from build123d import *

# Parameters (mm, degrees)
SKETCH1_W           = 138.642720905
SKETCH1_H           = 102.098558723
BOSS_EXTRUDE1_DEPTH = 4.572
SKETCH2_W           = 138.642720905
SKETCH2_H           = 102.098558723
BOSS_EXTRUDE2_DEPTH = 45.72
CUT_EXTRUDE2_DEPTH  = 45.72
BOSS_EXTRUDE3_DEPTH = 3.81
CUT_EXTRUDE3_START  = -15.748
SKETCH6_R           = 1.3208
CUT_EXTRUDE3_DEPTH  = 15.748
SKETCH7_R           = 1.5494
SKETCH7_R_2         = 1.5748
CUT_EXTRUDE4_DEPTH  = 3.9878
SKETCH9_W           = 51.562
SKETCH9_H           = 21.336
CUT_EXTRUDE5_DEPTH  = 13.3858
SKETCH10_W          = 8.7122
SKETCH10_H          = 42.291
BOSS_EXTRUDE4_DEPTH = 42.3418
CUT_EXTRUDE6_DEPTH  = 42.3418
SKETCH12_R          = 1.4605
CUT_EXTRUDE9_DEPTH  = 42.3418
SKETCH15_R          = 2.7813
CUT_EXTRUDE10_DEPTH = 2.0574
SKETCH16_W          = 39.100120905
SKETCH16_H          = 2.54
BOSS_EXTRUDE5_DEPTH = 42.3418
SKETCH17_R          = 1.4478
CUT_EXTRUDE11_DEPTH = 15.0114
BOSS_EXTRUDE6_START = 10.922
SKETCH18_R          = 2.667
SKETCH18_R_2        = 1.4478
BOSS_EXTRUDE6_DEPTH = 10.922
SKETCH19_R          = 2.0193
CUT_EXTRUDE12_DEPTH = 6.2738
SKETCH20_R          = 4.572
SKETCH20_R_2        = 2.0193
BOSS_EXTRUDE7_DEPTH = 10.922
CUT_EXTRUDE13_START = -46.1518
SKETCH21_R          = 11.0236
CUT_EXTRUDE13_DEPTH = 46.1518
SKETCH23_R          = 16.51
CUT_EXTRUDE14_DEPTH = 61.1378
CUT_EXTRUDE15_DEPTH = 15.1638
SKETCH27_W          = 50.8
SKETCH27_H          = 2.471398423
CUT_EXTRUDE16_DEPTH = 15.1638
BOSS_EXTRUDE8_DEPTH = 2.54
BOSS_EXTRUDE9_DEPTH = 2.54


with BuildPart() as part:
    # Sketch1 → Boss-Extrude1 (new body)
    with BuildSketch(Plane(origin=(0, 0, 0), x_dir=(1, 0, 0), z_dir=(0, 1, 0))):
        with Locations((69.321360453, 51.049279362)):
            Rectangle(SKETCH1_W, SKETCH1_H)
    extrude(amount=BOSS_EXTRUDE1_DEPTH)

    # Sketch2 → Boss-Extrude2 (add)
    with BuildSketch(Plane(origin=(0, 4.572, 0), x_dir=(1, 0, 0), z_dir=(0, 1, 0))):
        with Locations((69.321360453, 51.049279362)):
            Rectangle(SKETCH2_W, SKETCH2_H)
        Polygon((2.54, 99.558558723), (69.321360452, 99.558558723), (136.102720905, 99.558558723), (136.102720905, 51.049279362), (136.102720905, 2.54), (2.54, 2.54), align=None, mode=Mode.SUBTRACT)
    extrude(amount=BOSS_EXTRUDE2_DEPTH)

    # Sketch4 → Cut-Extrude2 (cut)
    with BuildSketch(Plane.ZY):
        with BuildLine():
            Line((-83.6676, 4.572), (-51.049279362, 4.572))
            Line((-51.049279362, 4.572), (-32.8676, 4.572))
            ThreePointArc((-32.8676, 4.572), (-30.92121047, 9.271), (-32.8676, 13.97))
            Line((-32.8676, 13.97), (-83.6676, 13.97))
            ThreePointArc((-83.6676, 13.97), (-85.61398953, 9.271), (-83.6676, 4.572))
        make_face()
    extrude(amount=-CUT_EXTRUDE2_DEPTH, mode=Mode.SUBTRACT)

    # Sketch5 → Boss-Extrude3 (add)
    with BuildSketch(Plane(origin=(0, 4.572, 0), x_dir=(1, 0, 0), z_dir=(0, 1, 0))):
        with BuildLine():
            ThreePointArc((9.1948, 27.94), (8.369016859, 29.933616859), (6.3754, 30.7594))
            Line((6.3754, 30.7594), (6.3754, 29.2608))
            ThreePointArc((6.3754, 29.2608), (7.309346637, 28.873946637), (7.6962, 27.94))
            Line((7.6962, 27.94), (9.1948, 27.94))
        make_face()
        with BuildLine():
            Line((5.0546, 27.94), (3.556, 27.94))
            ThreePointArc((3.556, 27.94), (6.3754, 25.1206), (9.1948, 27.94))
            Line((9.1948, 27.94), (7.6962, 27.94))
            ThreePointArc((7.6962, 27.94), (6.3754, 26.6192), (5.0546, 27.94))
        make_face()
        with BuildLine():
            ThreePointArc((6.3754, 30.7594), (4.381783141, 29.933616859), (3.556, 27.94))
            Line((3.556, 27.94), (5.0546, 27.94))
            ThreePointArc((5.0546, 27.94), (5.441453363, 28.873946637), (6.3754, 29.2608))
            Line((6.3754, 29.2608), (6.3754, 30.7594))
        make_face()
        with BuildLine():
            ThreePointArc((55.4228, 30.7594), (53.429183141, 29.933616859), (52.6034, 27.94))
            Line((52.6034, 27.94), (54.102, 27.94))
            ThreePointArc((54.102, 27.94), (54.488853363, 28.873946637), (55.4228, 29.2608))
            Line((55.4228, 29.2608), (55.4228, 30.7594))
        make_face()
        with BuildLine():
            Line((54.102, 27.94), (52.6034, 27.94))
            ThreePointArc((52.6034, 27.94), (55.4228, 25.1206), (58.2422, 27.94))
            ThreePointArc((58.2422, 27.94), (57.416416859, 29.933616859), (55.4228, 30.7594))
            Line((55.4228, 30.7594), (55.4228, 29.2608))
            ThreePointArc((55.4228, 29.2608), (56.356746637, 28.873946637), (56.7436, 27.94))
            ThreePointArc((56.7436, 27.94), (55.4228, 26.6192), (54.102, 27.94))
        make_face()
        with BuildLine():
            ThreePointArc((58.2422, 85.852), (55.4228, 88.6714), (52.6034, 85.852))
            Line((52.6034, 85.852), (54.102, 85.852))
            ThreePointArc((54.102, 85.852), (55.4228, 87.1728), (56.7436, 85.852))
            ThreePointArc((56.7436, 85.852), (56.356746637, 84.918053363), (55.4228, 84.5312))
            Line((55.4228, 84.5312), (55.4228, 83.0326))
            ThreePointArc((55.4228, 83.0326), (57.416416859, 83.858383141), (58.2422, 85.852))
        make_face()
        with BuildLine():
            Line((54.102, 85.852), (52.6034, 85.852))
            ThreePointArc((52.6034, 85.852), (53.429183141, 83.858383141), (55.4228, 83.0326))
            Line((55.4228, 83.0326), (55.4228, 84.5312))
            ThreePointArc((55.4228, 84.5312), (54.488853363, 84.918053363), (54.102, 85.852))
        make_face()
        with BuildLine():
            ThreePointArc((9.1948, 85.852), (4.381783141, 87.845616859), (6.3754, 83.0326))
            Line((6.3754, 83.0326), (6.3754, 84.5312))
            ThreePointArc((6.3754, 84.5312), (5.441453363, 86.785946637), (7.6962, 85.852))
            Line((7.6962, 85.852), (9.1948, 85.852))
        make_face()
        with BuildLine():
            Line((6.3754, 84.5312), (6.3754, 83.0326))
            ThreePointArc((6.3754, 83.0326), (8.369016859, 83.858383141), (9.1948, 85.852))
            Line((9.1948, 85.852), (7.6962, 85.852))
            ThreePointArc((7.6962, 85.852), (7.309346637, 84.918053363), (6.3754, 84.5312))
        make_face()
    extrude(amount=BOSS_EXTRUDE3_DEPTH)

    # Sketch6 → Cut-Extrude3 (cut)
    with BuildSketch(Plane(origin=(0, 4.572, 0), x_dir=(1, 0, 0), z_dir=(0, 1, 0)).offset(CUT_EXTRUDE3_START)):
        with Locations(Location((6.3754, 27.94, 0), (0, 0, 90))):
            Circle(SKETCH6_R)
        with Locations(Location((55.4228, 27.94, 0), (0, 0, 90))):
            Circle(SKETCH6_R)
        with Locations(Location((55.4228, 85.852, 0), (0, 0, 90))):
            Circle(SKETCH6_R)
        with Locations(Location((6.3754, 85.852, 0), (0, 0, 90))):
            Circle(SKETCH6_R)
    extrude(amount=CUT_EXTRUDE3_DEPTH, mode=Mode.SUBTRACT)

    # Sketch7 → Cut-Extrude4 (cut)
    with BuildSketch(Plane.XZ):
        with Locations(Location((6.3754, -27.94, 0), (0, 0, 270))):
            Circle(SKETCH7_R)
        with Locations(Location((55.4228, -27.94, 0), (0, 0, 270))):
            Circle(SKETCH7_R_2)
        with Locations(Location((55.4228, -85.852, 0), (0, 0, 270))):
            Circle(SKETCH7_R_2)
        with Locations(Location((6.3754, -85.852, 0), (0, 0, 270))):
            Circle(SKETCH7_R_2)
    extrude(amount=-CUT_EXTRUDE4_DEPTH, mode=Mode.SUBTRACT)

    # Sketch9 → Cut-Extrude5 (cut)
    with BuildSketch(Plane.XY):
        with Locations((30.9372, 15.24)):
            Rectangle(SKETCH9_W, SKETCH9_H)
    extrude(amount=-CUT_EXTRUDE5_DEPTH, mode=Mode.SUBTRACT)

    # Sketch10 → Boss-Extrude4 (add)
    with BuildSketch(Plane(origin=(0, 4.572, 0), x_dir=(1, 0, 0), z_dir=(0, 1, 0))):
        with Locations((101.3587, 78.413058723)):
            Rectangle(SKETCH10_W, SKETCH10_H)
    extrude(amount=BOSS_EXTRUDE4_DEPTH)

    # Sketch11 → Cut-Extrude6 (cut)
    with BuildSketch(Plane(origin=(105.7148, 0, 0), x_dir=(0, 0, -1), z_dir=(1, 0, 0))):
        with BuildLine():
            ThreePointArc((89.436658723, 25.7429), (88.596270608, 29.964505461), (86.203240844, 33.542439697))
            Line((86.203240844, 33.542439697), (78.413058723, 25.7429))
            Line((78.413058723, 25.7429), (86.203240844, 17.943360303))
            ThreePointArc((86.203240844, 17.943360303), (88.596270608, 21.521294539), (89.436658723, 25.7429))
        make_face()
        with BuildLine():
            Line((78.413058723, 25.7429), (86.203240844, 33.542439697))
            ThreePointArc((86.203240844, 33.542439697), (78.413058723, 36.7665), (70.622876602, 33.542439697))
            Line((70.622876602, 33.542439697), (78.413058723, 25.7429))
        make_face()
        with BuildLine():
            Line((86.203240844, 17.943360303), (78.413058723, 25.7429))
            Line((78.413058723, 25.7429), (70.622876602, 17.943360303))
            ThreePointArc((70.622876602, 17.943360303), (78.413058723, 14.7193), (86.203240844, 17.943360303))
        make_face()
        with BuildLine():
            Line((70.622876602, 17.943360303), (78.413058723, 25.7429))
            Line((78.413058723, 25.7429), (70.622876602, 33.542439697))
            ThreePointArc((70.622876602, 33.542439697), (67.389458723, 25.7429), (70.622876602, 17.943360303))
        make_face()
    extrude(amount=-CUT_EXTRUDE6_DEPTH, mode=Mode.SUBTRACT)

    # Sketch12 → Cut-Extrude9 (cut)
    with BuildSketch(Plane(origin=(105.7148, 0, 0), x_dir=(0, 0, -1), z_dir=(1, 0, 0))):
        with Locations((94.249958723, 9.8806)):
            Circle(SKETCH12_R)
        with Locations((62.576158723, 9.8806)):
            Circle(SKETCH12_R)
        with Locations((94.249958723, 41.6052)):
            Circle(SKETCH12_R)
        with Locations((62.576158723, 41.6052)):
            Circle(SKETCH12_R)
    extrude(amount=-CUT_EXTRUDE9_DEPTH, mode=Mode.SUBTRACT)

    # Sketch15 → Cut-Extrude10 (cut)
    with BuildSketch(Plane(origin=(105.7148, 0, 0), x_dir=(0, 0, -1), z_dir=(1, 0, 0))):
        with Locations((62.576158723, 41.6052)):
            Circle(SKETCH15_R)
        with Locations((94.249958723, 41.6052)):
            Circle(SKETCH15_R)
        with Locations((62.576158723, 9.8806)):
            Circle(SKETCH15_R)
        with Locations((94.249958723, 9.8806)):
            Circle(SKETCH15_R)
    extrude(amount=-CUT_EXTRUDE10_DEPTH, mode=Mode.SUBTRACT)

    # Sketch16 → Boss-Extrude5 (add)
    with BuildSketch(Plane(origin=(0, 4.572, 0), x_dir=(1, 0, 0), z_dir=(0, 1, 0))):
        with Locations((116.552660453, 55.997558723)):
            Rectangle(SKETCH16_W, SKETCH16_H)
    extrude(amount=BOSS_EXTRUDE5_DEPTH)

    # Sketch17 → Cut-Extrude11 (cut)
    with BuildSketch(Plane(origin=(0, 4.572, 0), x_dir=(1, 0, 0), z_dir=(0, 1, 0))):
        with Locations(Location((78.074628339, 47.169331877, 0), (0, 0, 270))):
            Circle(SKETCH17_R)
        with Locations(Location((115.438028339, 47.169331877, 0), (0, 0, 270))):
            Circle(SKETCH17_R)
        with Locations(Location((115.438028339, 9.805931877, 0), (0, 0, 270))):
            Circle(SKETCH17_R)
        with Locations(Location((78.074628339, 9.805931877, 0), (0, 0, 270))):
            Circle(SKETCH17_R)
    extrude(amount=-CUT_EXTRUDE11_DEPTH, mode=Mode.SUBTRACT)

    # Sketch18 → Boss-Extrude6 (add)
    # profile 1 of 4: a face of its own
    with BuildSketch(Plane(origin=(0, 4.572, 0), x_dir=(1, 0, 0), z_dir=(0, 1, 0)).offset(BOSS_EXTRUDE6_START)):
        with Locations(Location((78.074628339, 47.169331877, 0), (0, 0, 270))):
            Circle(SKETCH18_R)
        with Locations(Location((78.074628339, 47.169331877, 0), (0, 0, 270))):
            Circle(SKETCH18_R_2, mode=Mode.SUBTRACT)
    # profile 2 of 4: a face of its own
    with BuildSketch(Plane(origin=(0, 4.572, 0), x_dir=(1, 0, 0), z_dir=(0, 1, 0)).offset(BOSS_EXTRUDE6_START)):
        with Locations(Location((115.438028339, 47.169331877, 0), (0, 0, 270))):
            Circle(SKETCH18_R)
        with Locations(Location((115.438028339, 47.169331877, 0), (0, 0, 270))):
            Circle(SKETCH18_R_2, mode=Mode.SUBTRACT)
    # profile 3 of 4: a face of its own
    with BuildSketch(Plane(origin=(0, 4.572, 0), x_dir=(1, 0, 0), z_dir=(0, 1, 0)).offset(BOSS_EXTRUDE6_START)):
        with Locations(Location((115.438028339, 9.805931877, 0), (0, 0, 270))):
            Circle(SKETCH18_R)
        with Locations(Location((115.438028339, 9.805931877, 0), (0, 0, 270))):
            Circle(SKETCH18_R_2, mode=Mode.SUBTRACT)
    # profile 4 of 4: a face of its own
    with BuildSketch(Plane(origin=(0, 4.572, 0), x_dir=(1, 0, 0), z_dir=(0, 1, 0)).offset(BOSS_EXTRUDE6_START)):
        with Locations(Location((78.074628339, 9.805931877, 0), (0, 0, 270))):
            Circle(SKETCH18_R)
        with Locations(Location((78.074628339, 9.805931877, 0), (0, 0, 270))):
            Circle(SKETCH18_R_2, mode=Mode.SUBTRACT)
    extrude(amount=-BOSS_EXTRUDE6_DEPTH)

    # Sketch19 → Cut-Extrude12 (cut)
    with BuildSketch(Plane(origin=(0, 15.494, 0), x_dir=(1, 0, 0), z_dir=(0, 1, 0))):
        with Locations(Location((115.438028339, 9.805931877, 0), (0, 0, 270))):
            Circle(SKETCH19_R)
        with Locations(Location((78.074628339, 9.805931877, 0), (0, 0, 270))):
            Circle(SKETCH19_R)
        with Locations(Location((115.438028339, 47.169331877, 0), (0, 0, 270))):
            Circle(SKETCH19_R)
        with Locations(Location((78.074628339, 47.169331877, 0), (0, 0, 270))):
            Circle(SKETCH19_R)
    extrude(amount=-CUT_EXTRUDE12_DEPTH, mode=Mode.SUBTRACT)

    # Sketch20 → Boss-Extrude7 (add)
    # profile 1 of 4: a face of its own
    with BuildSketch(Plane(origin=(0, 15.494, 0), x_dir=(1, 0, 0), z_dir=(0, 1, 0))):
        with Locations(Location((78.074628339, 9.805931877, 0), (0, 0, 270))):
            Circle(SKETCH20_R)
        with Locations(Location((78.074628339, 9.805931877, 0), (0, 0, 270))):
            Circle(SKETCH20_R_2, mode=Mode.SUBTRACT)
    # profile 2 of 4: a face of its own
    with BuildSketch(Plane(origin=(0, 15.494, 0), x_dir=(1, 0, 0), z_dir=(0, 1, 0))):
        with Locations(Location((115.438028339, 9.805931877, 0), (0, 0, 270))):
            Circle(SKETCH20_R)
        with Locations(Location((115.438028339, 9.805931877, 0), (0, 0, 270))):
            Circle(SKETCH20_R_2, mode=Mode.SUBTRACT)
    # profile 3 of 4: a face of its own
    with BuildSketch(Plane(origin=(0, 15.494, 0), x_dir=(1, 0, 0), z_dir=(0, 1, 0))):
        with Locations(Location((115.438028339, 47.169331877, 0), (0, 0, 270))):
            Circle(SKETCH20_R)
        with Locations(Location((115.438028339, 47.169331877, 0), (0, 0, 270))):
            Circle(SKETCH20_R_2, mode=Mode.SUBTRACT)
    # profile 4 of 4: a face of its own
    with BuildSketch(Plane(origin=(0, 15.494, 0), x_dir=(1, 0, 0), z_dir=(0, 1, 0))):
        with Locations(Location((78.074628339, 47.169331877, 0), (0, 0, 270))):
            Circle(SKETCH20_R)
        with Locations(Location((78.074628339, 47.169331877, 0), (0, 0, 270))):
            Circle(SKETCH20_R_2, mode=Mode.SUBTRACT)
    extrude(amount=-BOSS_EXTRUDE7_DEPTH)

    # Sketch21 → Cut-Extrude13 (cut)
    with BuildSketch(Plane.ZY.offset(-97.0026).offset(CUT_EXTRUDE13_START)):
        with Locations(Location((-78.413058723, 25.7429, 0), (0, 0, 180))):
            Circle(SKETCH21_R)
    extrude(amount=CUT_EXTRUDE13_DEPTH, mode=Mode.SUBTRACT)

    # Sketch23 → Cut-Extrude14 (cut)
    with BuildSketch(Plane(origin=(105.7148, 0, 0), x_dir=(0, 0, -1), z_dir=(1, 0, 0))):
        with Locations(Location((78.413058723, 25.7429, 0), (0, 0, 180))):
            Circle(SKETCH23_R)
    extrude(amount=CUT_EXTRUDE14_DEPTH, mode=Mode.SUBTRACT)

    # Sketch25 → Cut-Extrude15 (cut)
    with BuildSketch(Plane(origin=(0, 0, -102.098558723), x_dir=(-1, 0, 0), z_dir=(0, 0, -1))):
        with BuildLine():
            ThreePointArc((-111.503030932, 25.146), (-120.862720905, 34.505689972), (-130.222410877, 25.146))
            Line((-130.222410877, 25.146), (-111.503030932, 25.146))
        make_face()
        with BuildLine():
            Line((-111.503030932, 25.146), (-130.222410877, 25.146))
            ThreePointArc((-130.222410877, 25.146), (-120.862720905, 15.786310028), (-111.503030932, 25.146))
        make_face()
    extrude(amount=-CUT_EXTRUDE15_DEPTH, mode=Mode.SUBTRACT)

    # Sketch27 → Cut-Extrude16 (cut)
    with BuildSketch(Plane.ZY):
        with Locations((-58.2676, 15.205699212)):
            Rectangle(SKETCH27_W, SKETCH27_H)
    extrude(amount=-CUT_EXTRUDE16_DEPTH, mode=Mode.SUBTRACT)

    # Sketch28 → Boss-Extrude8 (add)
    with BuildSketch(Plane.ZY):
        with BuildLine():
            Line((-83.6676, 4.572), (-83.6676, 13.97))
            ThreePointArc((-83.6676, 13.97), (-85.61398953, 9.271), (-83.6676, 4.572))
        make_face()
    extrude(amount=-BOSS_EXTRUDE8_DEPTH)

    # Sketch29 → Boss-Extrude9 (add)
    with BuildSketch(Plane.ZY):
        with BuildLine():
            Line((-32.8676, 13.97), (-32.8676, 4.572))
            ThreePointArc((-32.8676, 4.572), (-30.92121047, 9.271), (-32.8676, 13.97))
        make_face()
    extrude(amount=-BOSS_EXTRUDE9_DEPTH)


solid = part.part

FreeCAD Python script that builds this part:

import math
import FreeCAD as App
import Part
import Sketcher

V = App.Vector
Q = App.Units.Quantity

doc = App.newDocument("Part")
body = doc.addObject("PartDesign::Body", "Body")

# Sketch on XZ plane
sketch1 = body.newObject("Sketcher::SketchObject", "Sketch")
sketch1.AttachmentSupport = (doc.getObject("XZ_Plane"), [""])
sketch1.MapMode = "FlatFace"
sketch1.addGeometry([
    Part.LineSegment(V(0, -102, 0), V(0, 0, 0)),
    Part.LineSegment(V(0, 0, 0), V(139, 0, 0)),
    Part.LineSegment(V(139, 0, 0), V(139, -102, 0)),
    Part.LineSegment(V(139, -102, 0), V(0, -102, 0)),
], False)
sketch1.addConstraint([
    Sketcher.Constraint("Coincident", 0, 2, 1, 1),
    Sketcher.Constraint("Coincident", 1, 2, 2, 1),
    Sketcher.Constraint("Coincident", 2, 2, 3, 1),
    Sketcher.Constraint("Coincident", 3, 2, 0, 1),
    Sketcher.Constraint("Vertical", 0),
    Sketcher.Constraint("Horizontal", 1),
    Sketcher.Constraint("Vertical", 2),
    Sketcher.Constraint("Horizontal", 3),
    Sketcher.Constraint("Coincident", 0, 2, -1, 1),
    Sketcher.Constraint("DistanceX", 1, 1, 1, 2, 138.642721),
    Sketcher.Constraint("DistanceY", 0, 1, 0, 2, 102.098559),
])
pad1 = body.newObject("PartDesign::Pad", "Pad")
pad1.Profile = sketch1
pad1.Length = Q("0.18 in")
pad1.Reversed = True

# Sketch on XZ plane
sketch2 = body.newObject("Sketcher::SketchObject", "Sketch001")
sketch2.AttachmentSupport = (doc.getObject("XZ_Plane"), [""])
sketch2.MapMode = "FlatFace"
sketch2.AttachmentOffset = App.Placement(V(0, 0, -0.18 * 25.4), App.Rotation())
sketch2.addGeometry([
    Part.LineSegment(V(0, -102, 0), V(0, 0, 0)),  # 0
    Part.LineSegment(V(0, 0, 0), V(139, 0, 0)),  # 1
    Part.LineSegment(V(139, 0, 0), V(139, -102, 0)),  # 2
    Part.LineSegment(V(139, -102, 0), V(0, -102, 0)),  # 3
    Part.LineSegment(V(3, -3, 0), V(3, -100, 0)),  # 4
    Part.LineSegment(V(3, -100, 0), V(136, -100, 0)),  # 5
    Part.LineSegment(V(136, -100, 0), V(136, -3, 0)),  # 6
    Part.LineSegment(V(136, -3, 0), V(3, -3, 0)),  # 7
], False)
sketch2.addConstraint([
    Sketcher.Constraint("Coincident", 0, 2, 1, 1),
    Sketcher.Constraint("Coincident", 1, 2, 2, 1),
    Sketcher.Constraint("Coincident", 2, 2, 3, 1),
    Sketcher.Constraint("Coincident", 3, 2, 0, 1),
    Sketcher.Constraint("Coincident", 4, 2, 5, 1),
    Sketcher.Constraint("Coincident", 5, 2, 6, 1),
    Sketcher.Constraint("Coincident", 6, 2, 7, 1),
    Sketcher.Constraint("Coincident", 7, 2, 4, 1),
    Sketcher.Constraint("Vertical", 0),
    Sketcher.Constraint("Horizontal", 1),
    Sketcher.Constraint("Vertical", 2),
    Sketcher.Constraint("Horizontal", 3),
    Sketcher.Constraint("Vertical", 4),
    Sketcher.Constraint("Horizontal", 5),
    Sketcher.Constraint("Vertical", 6),
    Sketcher.Constraint("Horizontal", 7),
    Sketcher.Constraint("Coincident", 0, 2, -1, 1),
    Sketcher.Constraint("DistanceX", -1, 1, 4, 2, Q("0.1 in")),
    Sketcher.Constraint("DistanceY", 6, 2, -1, 1, Q("0.1 in")),
    Sketcher.Constraint("DistanceY", 3, 2, 4, 2, Q("0.1 in")),
    Sketcher.Constraint("DistanceX", 5, 2, 2, 2, Q("0.1 in")),
    Sketcher.Constraint("DistanceX", 1, 1, 1, 2, 138.642721),
    Sketcher.Constraint("DistanceY", 0, 1, 0, 2, 102.098559),
])
pad2 = body.newObject("PartDesign::Pad", "Pad001")
pad2.Profile = sketch2
pad2.Length = Q("1.8 in")
pad2.Reversed = True

# Sketch on YZ plane
sketch3 = body.newObject("Sketcher::SketchObject", "Sketch002")
sketch3.AttachmentSupport = (doc.getObject("YZ_Plane"), [""])
sketch3.MapMode = "FlatFace"
sketch3.addGeometry([
    Part.LineSegment(V(5, -84, 0), V(5, -33, 0)),
    Part.ArcOfCircle(Part.Circle(V(9, -38, 0), V(0, 0, 1), 7), math.radians(45), math.radians(135)),
    Part.LineSegment(V(14, -33, 0), V(14, -84, 0)),
    Part.ArcOfCircle(Part.Circle(V(9, -79, 0), V(0, 0, 1), 7), math.radians(-135), math.radians(-45)),
], False)
sketch3.addConstraint([
    Sketcher.Constraint("Coincident", 0, 2, 1, 2),
    Sketcher.Constraint("Coincident", 1, 1, 2, 1),
    Sketcher.Constraint("Coincident", 2, 2, 3, 2),
    Sketcher.Constraint("Coincident", 3, 1, 0, 1),
    Sketcher.Constraint("Vertical", 0),
    Sketcher.Constraint("Vertical", 2),
    Sketcher.Constraint("Equal", 1, 3),
    Sketcher.Constraint("Horizontal", 0, 2, 1, 1),
    Sketcher.Constraint("Horizontal", 2, 2, 3, 1),
    Sketcher.Constraint("DistanceY", 0, 1, 0, 2, Q("2 in")),
    Sketcher.Constraint("DistanceX", -1, 1, 0, 2, Q("0.18 in")),
    Sketcher.Constraint("DistanceX", -1, 1, 1, 1, Q("0.55 in")),
    Sketcher.Constraint("DistanceY", 3, 3, 1, 3, Q("1.63 in")),
    Sketcher.Constraint("DistanceY", 1, 3, -1, 1, Q("1.479 in")),
])
pocket1 = body.newObject("PartDesign::Pocket", "Pocket")
pocket1.Profile = sketch3
pocket1.Length = Q("1.8 in")
pocket1.Reversed = True

# Sketch on XZ plane
sketch4 = body.newObject("Sketcher::SketchObject", "Sketch003")
sketch4.AttachmentSupport = (doc.getObject("XZ_Plane"), [""])
sketch4.MapMode = "FlatFace"
sketch4.AttachmentOffset = App.Placement(V(0, 0, -0.18 * 25.4), App.Rotation())
sketch4.addGeometry([
    Part.ArcOfCircle(Part.Circle(V(6.4, -27.9, 0), V(0, 0, 1), 2.8), math.radians(-90), math.radians(0)),  # 0
    Part.ArcOfCircle(Part.Circle(V(6.4, -27.9, 0), V(0, 0, 1), 2.8), math.radians(180), math.radians(270)),  # 1
    Part.ArcOfCircle(Part.Circle(V(6.4, -27.9, 0), V(0, 0, 1), 2.8), math.radians(0), math.radians(180)),  # 2
    Part.ArcOfCircle(Part.Circle(V(6.4, -27.9, 0), V(0, 0, 1), 1.3), math.radians(-90), math.radians(0)),  # 3
    Part.ArcOfCircle(Part.Circle(V(6.4, -27.9, 0), V(0, 0, 1), 1.3), math.radians(0), math.radians(180)),  # 4
    Part.ArcOfCircle(Part.Circle(V(6.4, -27.9, 0), V(0, 0, 1), 1.3), math.radians(180), math.radians(270)),  # 5
    Part.ArcOfCircle(Part.Circle(V(55.4, -27.9, 0), V(0, 0, 1), 2.8), math.radians(180), math.radians(270)),  # 6
    Part.ArcOfCircle(Part.Circle(V(55.4, -27.9, 0), V(0, 0, 1), 2.8), math.radians(0), math.radians(180)),  # 7
    Part.ArcOfCircle(Part.Circle(V(55.4, -27.9, 0), V(0, 0, 1), 2.8), math.radians(-90), math.radians(0)),  # 8
    Part.ArcOfCircle(Part.Circle(V(55.4, -27.9, 0), V(0, 0, 1), 1.3), math.radians(180), math.radians(270)),  # 9
    Part.ArcOfCircle(Part.Circle(V(55.4, -27.9, 0), V(0, 0, 1), 1.3), math.radians(-90), math.radians(0)),  # 10
    Part.ArcOfCircle(Part.Circle(V(55.4, -27.9, 0), V(0, 0, 1), 1.3), math.radians(0), math.radians(180)),  # 11
    Part.ArcOfCircle(Part.Circle(V(55.4, -85.9, 0), V(0, 0, 1), 2.8), math.radians(180), math.radians(360)),  # 12
    Part.ArcOfCircle(Part.Circle(V(55.4, -85.9, 0), V(0, 0, 1), 2.8), math.radians(90), math.radians(180)),  # 13
    Part.ArcOfCircle(Part.Circle(V(55.4, -85.9, 0), V(0, 0, 1), 2.8), math.radians(0), math.radians(90)),  # 14
    Part.ArcOfCircle(Part.Circle(V(55.4, -85.9, 0), V(0, 0, 1), 1.3), math.radians(0), math.radians(90)),  # 15
    Part.ArcOfCircle(Part.Circle(V(55.4, -85.9, 0), V(0, 0, 1), 1.3), math.radians(90), math.radians(180)),  # 16
    Part.ArcOfCircle(Part.Circle(V(55.4, -85.9, 0), V(0, 0, 1), 1.3), math.radians(180), math.radians(360)),  # 17
    Part.ArcOfCircle(Part.Circle(V(6.4, -85.9, 0), V(0, 0, 1), 2.8), math.radians(90), math.radians(360)),  # 18
    Part.ArcOfCircle(Part.Circle(V(6.4, -85.9, 0), V(0, 0, 1), 2.8), math.radians(0), math.radians(90)),  # 19
    Part.ArcOfCircle(Part.Circle(V(6.4, -85.9, 0), V(0, 0, 1), 1.3), math.radians(90), math.radians(360)),  # 20
    Part.ArcOfCircle(Part.Circle(V(6.4, -85.9, 0), V(0, 0, 1), 1.3), math.radians(0), math.radians(90)),  # 21
], False)
sketch4.addConstraint([
    Sketcher.Constraint("Tangent", 0, 1, 1, 2),
    Sketcher.Constraint("Tangent", 1, 1, 2, 2),
    Sketcher.Constraint("Tangent", 2, 1, 0, 2),
    Sketcher.Constraint("Tangent", 3, 2, 4, 1),
    Sketcher.Constraint("Tangent", 4, 2, 5, 1),
    Sketcher.Constraint("Tangent", 5, 2, 3, 1),
    Sketcher.Constraint("Tangent", 6, 1, 7, 2),
    Sketcher.Constraint("Tangent", 7, 1, 8, 2),
    Sketcher.Constraint("Tangent", 8, 1, 6, 2),
    Sketcher.Constraint("Tangent", 9, 2, 10, 1),
    Sketcher.Constraint("Tangent", 10, 2, 11, 1),
    Sketcher.Constraint("Tangent", 11, 2, 9, 1),
    Sketcher.Constraint("Tangent", 12, 1, 13, 2),
    Sketcher.Constraint("Tangent", 13, 1, 14, 2),
    Sketcher.Constraint("Tangent", 14, 1, 12, 2),
    Sketcher.Constraint("Tangent", 15, 2, 16, 1),
    Sketcher.Constraint("Tangent", 16, 2, 17, 1),
    Sketcher.Constraint("Tangent", 17, 2, 15, 1),
    Sketcher.Constraint("Tangent", 18, 1, 19, 2),
    Sketcher.Constraint("Coincident", 19, 1, 18, 2),
    Sketcher.Constraint("Tangent", 20, 1, 21, 2),
    Sketcher.Constraint("Coincident", 21, 1, 20, 2),
    Sketcher.Constraint("Coincident", 3, 3, 0, 3),
    Sketcher.Constraint("Coincident", 9, 3, 6, 3),
    Sketcher.Constraint("Coincident", 15, 3, 12, 3),
    Sketcher.Constraint("Coincident", 20, 3, 18, 3),
    Sketcher.Constraint("Equal", 2, 6),
    Sketcher.Constraint("Equal", 5, 9),
    Sketcher.Constraint("Equal", 8, 12),
    Sketcher.Constraint("Equal", 11, 15),
    Sketcher.Constraint("Equal", 14, 18),
    Sketcher.Constraint("Equal", 17, 20),
    Sketcher.Constraint("Horizontal", 5, 3, 6, 3),
    Sketcher.Constraint("Horizontal", 17, 3, 18, 3),
    Sketcher.Constraint("Horizontal", 11, 3, 1, 1),
    Sketcher.Constraint("Horizontal", 1, 1, 2, 1),
    Sketcher.Constraint("Horizontal", 2, 1, 3, 2),
    Sketcher.Constraint("Horizontal", 3, 2, 4, 2),
    Sketcher.Constraint("Horizontal", 4, 2, 6, 1),
    Sketcher.Constraint("Horizontal", 6, 1, 7, 1),
    Sketcher.Constraint("Horizontal", 7, 1, 10, 2),
    Sketcher.Constraint("Horizontal", 10, 2, 11, 2),
    Sketcher.Constraint("Horizontal", 21, 3, 12, 1),
    Sketcher.Constraint("Horizontal", 12, 1, 14, 1),
    Sketcher.Constraint("Horizontal", 14, 1, 16, 2),
    Sketcher.Constraint("Horizontal", 16, 2, 17, 2),
    Sketcher.Constraint("Horizontal", 17, 2, 19, 1),
    Sketcher.Constraint("Horizontal", 19, 1, 21, 1),
    Sketcher.Constraint("Vertical", 11, 3, 12, 3),
    Sketcher.Constraint("Vertical", 5, 3, 18, 3),
    Sketcher.Constraint("Vertical", 21, 3, 0, 1),
    Sketcher.Constraint("Vertical", 0, 1, 5, 2),
    Sketcher.Constraint("Vertical", 17, 3, 8, 1),
    Sketcher.Constraint("Vertical", 8, 1, 9, 2),
    Sketcher.Constraint("Vertical", 9, 2, 13, 1),
    Sketcher.Constraint("Vertical", 13, 1, 15, 2),
    Sketcher.Constraint("Vertical", 5, 2, 18, 1),
    Sketcher.Constraint("Vertical", 18, 1, 20, 1),
    Sketcher.Constraint("Radius", 0, Q("0.111 in")),
    Sketcher.Constraint("Radius", 3, Q("0.052 in")),
    Sketcher.Constraint("DistanceY", 0, 3, -1, 1, Q("1.1 in")),
    Sketcher.Constraint("DistanceY", 12, 3, -1, 1, Q("3.38 in")),
    Sketcher.Constraint("DistanceX", -1, 1, 1, 1, Q("0.14 in")),
    Sketcher.Constraint("DistanceX", -1, 1, 11, 2, Q("2.13 in")),
])
pad3 = body.newObject("PartDesign::Pad", "Pad002")
pad3.Profile = sketch4
pad3.Length = Q("0.15 in")
pad3.Reversed = True

# Sketch on XZ plane
sketch5 = body.newObject("Sketcher::SketchObject", "Sketch004")
sketch5.AttachmentSupport = (doc.getObject("XZ_Plane"), [""])
sketch5.MapMode = "FlatFace"
sketch5.AttachmentOffset = App.Placement(V(0, 0, 0.44 * 25.4), App.Rotation())
sketch5.addGeometry([
    Part.Circle(V(6.4, -27.9, 0), V(0, 0, 1), 1.3),
    Part.Circle(V(55.4, -27.9, 0), V(0, 0, 1), 1.3),
    Part.Circle(V(55.4, -85.9, 0), V(0, 0, 1), 1.3),
    Part.Circle(V(6.4, -85.9, 0), V(0, 0, 1), 1.3),
], False)
sketch5.addConstraint([
    Sketcher.Constraint("Equal", 0, 1),
    Sketcher.Constraint("Equal", 1, 2),
    Sketcher.Constraint("Equal", 2, 3),
    Sketcher.Constraint("Horizontal", 0, 3, 1, 3),
    Sketcher.Constraint("Horizontal", 2, 3, 3, 3),
    Sketcher.Constraint("Vertical", 1, 3, 2, 3),
    Sketcher.Constraint("Vertical", 0, 3, 3, 3),
    Sketcher.Constraint("Diameter", 0, Q("0.104 in")),
    Sketcher.Constraint("DistanceY", 0, 3, -1, 1, Q("1.1 in")),
    Sketcher.Constraint("DistanceY", 2, 3, -1, 1, Q("3.38 in")),
    Sketcher.Constraint("DistanceX", -1, 1, 0, 3, Q("0.251 in")),
    Sketcher.Constraint("DistanceX", -1, 1, 1, 3, Q("2.182 in")),
])
pocket2 = body.newObject("PartDesign::Pocket", "Pocket001")
pocket2.Profile = sketch5
pocket2.Length = Q("0.62 in")

# Sketch on XZ plane
sketch6 = body.newObject("Sketcher::SketchObject", "Sketch005")
sketch6.AttachmentSupport = (doc.getObject("XZ_Plane"), [""])
sketch6.MapMode = "FlatFace"
sketch6.addGeometry([
    Part.Circle(V(6.4, -27.9, 0), V(0, 0, 1), 1.5),
    Part.Circle(V(55.4, -27.9, 0), V(0, 0, 1), 1.6),
    Part.Circle(V(55.4, -85.9, 0), V(0, 0, 1), 1.6),
    Part.Circle(V(6.4, -85.9, 0), V(0, 0, 1), 1.6),
], False)
sketch6.addConstraint([
    Sketcher.Constraint("Equal", 1, 2),
    Sketcher.Constraint("Equal", 2, 3),
    Sketcher.Constraint("Horizontal", 0, 3, 1, 3),
    Sketcher.Constraint("Horizontal", 2, 3, 3, 3),
    Sketcher.Constraint("Vertical", 1, 3, 2, 3),
    Sketcher.Constraint("Vertical", 0, 3, 3, 3),
    Sketcher.Constraint("Diameter", 0, Q("0.122 in")),
    Sketcher.Constraint("Diameter", 1, Q("0.124 in")),
    Sketcher.Constraint("DistanceY", 0, 3, -1, 1, Q("1.1 in")),
    Sketcher.Constraint("DistanceY", 2, 3, -1, 1, Q("3.38 in")),
    Sketcher.Constraint("DistanceX", -1, 1, 0, 3, Q("0.251 in")),
    Sketcher.Constraint("DistanceX", -1, 1, 1, 3, Q("2.182 in")),
])
pocket3 = body.newObject("PartDesign::Pocket", "Pocket002")
pocket3.Profile = sketch6
pocket3.Length = Q("0.157 in")

# Sketch on XY plane
sketch7 = body.newObject("Sketcher::SketchObject", "Sketch006")
sketch7.AttachmentSupport = (doc.getObject("XY_Plane"), [""])
sketch7.MapMode = "FlatFace"
sketch7.addGeometry([
    Part.LineSegment(V(5, 26, 0), V(5, 5, 0)),
    Part.LineSegment(V(5, 5, 0), V(57, 5, 0)),
    Part.LineSegment(V(57, 5, 0), V(57, 26, 0)),
    Part.LineSegment(V(57, 26, 0), V(5, 26, 0)),
], False)
sketch7.addConstraint([
    Sketcher.Constraint("Coincident", 0, 2, 1, 1),
    Sketcher.Constraint("Coincident", 1, 2, 2, 1),
    Sketcher.Constraint("Coincident", 2, 2, 3, 1),
    Sketcher.Constraint("Coincident", 3, 2, 0, 1),
    Sketcher.Constraint("Vertical", 0),
    Sketcher.Constraint("Horizontal", 1),
    Sketcher.Constraint("Vertical", 2),
    Sketcher.Constraint("Horizontal", 3),
    Sketcher.Constraint("DistanceX", 1, 1, 1, 2, Q("2.03 in")),
    Sketcher.Constraint("DistanceY", 0, 2, 0, 1, Q("0.84 in")),
    Sketcher.Constraint("DistanceY", -1, 1, 0, 2, Q("0.18 in")),
    Sketcher.Constraint("DistanceX", -1, 1, 0, 2, Q("0.203 in")),
])
pocket4 = body.newObject("PartDesign::Pocket", "Pocket003")
pocket4.Profile = sketch7
pocket4.Length = Q("0.527 in")

# Sketch on XZ plane
sketch8 = body.newObject("Sketcher::SketchObject", "Sketch007")
sketch8.AttachmentSupport = (doc.getObject("XZ_Plane"), [""])
sketch8.MapMode = "FlatFace"
sketch8.AttachmentOffset = App.Placement(V(0, 0, -0.18 * 25.4), App.Rotation())
sketch8.addGeometry([
    Part.LineSegment(V(97, -100, 0), V(97, -57, 0)),
    Part.LineSegment(V(97, -57, 0), V(106, -57, 0)),
    Part.LineSegment(V(106, -57, 0), V(106, -100, 0)),
    Part.LineSegment(V(106, -100, 0), V(97, -100, 0)),
], False)
sketch8.addConstraint([
    Sketcher.Constraint("Coincident", 0, 2, 1, 1),
    Sketcher.Constraint("Coincident", 1, 2, 2, 1),
    Sketcher.Constraint("Coincident", 2, 2, 3, 1),
    Sketcher.Constraint("Coincident", 3, 2, 0, 1),
    Sketcher.Constraint("Vertical", 0),
    Sketcher.Constraint("Horizontal", 1),
    Sketcher.Constraint("Vertical", 2),
    Sketcher.Constraint("Horizontal", 3),
    Sketcher.Constraint("DistanceX", 1, 1, 1, 2, Q("0.343 in")),
    Sketcher.Constraint("DistanceY", 0, 1, 0, 2, Q("1.665 in")),
    Sketcher.Constraint("DistanceX", -1, 1, 0, 2, Q("3.819 in")),
    Sketcher.Constraint("DistanceY", 0, 2, -1, 1, 57.267559),
])
pad4 = body.newObject("PartDesign::Pad", "Pad003")
pad4.Profile = sketch8
pad4.Length = Q("1.667 in")
pad4.Reversed = True

# Sketch on YZ plane
sketch9 = body.newObject("Sketcher::SketchObject", "Sketch008")
sketch9.AttachmentSupport = (doc.getObject("YZ_Plane"), [""])
sketch9.MapMode = "FlatFace"
sketch9.AttachmentOffset = App.Placement(V(0, 0, 4.162 * 25.4), App.Rotation())
sketch9.addGeometry([
    Part.ArcOfCircle(Part.Circle(V(26, -78, 0), V(0, 0, 1), 11), math.radians(-45), math.radians(45)),  # 0
    Part.ArcOfCircle(Part.Circle(V(26, -78, 0), V(0, 0, 1), 11), math.radians(45), math.radians(135)),  # 1
    Part.ArcOfCircle(Part.Circle(V(26, -78, 0), V(0, 0, 1), 11), math.radians(135), math.radians(225)),  # 2
    Part.ArcOfCircle(Part.Circle(V(26, -78, 0), V(0, 0, 1), 11), math.radians(-135), math.radians(-90)),  # 3
    Part.ArcOfCircle(Part.Circle(V(26, -78, 0), V(0, 0, 1), 11), math.radians(-90), math.radians(-45)),  # 4
], False)
sketch9.addConstraint([
    Sketcher.Constraint("Tangent", 0, 2, 1, 1),
    Sketcher.Constraint("Tangent", 1, 2, 2, 1),
    Sketcher.Constraint("Tangent", 2, 2, 3, 1),
    Sketcher.Constraint("Tangent", 3, 2, 4, 1),
    Sketcher.Constraint("Tangent", 4, 2, 0, 1),
    Sketcher.Constraint("Coincident", 2, 3, 0, 3),
    Sketcher.Constraint("Horizontal", 0, 2, 1, 2),
    Sketcher.Constraint("Horizontal", 2, 2, 4, 2),
    Sketcher.Constraint("Vertical", 1, 2, 2, 2),
    Sketcher.Constraint("Vertical", 4, 3, 3, 2),
    Sketcher.Constraint("Radius", 0, Q("0.434 in")),
    Sketcher.Constraint("DistanceX", -1, 1, 0, 3, Q("1.0135 in")),
    Sketcher.Constraint("DistanceY", 2, 3, 0, 2, Q("0.3067001 in")),
    Sketcher.Constraint("DistanceY", 0, 3, -1, 1, 78.413059),
])
pocket5 = body.newObject("PartDesign::Pocket", "Pocket004")
pocket5.Profile = sketch9
pocket5.Length = Q("1.667 in")

# Sketch on YZ plane
sketch10 = body.newObject("Sketcher::SketchObject", "Sketch009")
sketch10.AttachmentSupport = (doc.getObject("YZ_Plane"), [""])
sketch10.MapMode = "FlatFace"
sketch10.AttachmentOffset = App.Placement(V(0, 0, 4.162 * 25.4), App.Rotation())
sketch10.addGeometry([
    Part.Circle(V(9.9, -94.2, 0), V(0, 0, 1), 1.5),
    Part.Circle(V(9.9, -62.6, 0), V(0, 0, 1), 1.5),
    Part.Circle(V(41.6, -94.2, 0), V(0, 0, 1), 1.5),
    Part.Circle(V(41.6, -62.6, 0), V(0, 0, 1), 1.5),
], False)
sketch10.addConstraint([
    Sketcher.Constraint("Equal", 0, 1),
    Sketcher.Constraint("Equal", 1, 2),
    Sketcher.Constraint("Equal", 2, 3),
    Sketcher.Constraint("Horizontal", 0, 3, 2, 3),
    Sketcher.Constraint("Horizontal", 1, 3, 3, 3),
    Sketcher.Constraint("Vertical", 0, 3, 1, 3),
    Sketcher.Constraint("Vertical", 2, 3, 3, 3),
    Sketcher.Constraint("Diameter", 0, Q("0.115 in")),
    Sketcher.Constraint("DistanceX", -1, 1, 0, 3, Q("0.389 in")),
    Sketcher.Constraint("DistanceX", -1, 1, 2, 3, Q("1.638 in")),
    Sketcher.Constraint("DistanceY", 0, 3, 1, 3, Q("1.247 in")),
    Sketcher.Constraint("DistanceY", 0, 3, -1, 1, 94.249959),
])
pocket6 = body.newObject("PartDesign::Pocket", "Pocket005")
pocket6.Profile = sketch10
pocket6.Length = Q("1.667 in")

# Sketch on YZ plane
sketch11 = body.newObject("Sketcher::SketchObject", "Sketch010")
sketch11.AttachmentSupport = (doc.getObject("YZ_Plane"), [""])
sketch11.MapMode = "FlatFace"
sketch11.AttachmentOffset = App.Placement(V(0, 0, 4.162 * 25.4), App.Rotation())
sketch11.addGeometry([
    Part.Circle(V(41.6, -62.6, 0), V(0, 0, 1), 2.8),
    Part.Circle(V(41.6, -94.2, 0), V(0, 0, 1), 2.8),
    Part.Circle(V(9.9, -62.6, 0), V(0, 0, 1), 2.8),
    Part.Circle(V(9.9, -94.2, 0), V(0, 0, 1), 2.8),
], False)
sketch11.addConstraint([
    Sketcher.Constraint("Equal", 0, 1),
    Sketcher.Constraint("Equal", 1, 2),
    Sketcher.Constraint("Equal", 2, 3),
    Sketcher.Constraint("Horizontal", 0, 3, 2, 3),
    Sketcher.Constraint("Horizontal", 1, 3, 3, 3),
    Sketcher.Constraint("Vertical", 0, 3, 1, 3),
    Sketcher.Constraint("Vertical", 2, 3, 3, 3),
    Sketcher.Constraint("Diameter", 0, Q("0.219 in")),
    Sketcher.Constraint("DistanceX", -1, 1, 0, 3, Q("1.638 in")),
    Sketcher.Constraint("DistanceX", -1, 1, 2, 3, Q("0.389 in")),
    Sketcher.Constraint("DistanceY", 1, 3, 0, 3, Q("1.247 in")),
    Sketcher.Constraint("DistanceY", 0, 3, -1, 1, 62.576159),
])
pocket7 = body.newObject("PartDesign::Pocket", "Pocket006")
pocket7.Profile = sketch11
pocket7.Length = Q("0.081 in")

# Sketch on XZ plane
sketch12 = body.newObject("Sketcher::SketchObject", "Sketch011")
sketch12.AttachmentSupport = (doc.getObject("XZ_Plane"), [""])
sketch12.MapMode = "FlatFace"
sketch12.AttachmentOffset = App.Placement(V(0, 0, -0.18 * 25.4), App.Rotation())
sketch12.addGeometry([
    Part.LineSegment(V(97, -57.3, 0), V(97, -54.7, 0)),
    Part.LineSegment(V(97, -54.7, 0), V(136.1, -54.7, 0)),
    Part.LineSegment(V(136.1, -54.7, 0), V(136.1, -57.3, 0)),
    Part.LineSegment(V(136.1, -57.3, 0), V(97, -57.3, 0)),
], False)
sketch12.addConstraint([
    Sketcher.Constraint("Coincident", 0, 2, 1, 1),
    Sketcher.Constraint("Coincident", 1, 2, 2, 1),
    Sketcher.Constraint("Coincident", 2, 2, 3, 1),
    Sketcher.Constraint("Coincident", 3, 2, 0, 1),
    Sketcher.Constraint("Vertical", 0),
    Sketcher.Constraint("Horizontal", 1),
    Sketcher.Constraint("Vertical", 2),
    Sketcher.Constraint("Horizontal", 3),
    Sketcher.Constraint("DistanceY", 0, 1, 0, 2, Q("0.1 in")),
    Sketcher.Constraint("DistanceX", -1, 1, 0, 2, Q("3.819 in")),
    Sketcher.Constraint("DistanceX", 1, 1, 1, 2, 39.100121),
    Sketcher.Constraint("DistanceY", 0, 2, -1, 1, 54.727559),
])
pad5 = body.newObject("PartDesign::Pad", "Pad004")
pad5.Profile = sketch12
pad5.Length = Q("1.667 in")
pad5.Reversed = True

# Sketch on XZ plane
sketch13 = body.newObject("Sketcher::SketchObject", "Sketch012")
sketch13.AttachmentSupport = (doc.getObject("XZ_Plane"), [""])
sketch13.MapMode = "FlatFace"
sketch13.AttachmentOffset = App.Placement(V(0, 0, -0.18 * 25.4), App.Rotation())
sketch13.addGeometry([
    Part.Circle(V(78.1, -47.2, 0), V(0, 0, 1), 1.4),
    Part.Circle(V(115.4, -47.2, 0), V(0, 0, 1), 1.4),
    Part.Circle(V(115.4, -9.8, 0), V(0, 0, 1), 1.4),
    Part.Circle(V(78.1, -9.8, 0), V(0, 0, 1), 1.4),
], False)
sketch13.addConstraint([
    Sketcher.Constraint("Equal", 0, 1),
    Sketcher.Constraint("Equal", 1, 2),
    Sketcher.Constraint("Equal", 2, 3),
    Sketcher.Constraint("Horizontal", 0, 3, 1, 3),
    Sketcher.Constraint("Horizontal", 2, 3, 3, 3),
    Sketcher.Constraint("Vertical", 1, 3, 2, 3),
    Sketcher.Constraint("Vertical", 0, 3, 3, 3),
    Sketcher.Constraint("Diameter", 0, Q("0.114 in")),
    Sketcher.Constraint("DistanceX", 0, 3, 1, 3, Q("1.471 in")),
    Sketcher.Constraint("DistanceY", 1, 3, 2, 3, Q("1.471 in")),
    Sketcher.Constraint("DistanceX", -1, 1, 0, 3, 78.074628),
    Sketcher.Constraint("DistanceY", 0, 3, -1, 1, 47.169332),
])
pocket8 = body.newObject("PartDesign::Pocket", "Pocket007")
pocket8.Profile = sketch13
pocket8.Length = Q("0.591 in")
pocket8.Reversed = True

# Sketch on XZ plane
sketch14 = body.newObject("Sketcher::SketchObject", "Sketch013")
sketch14.AttachmentSupport = (doc.getObject("XZ_Plane"), [""])
sketch14.MapMode = "FlatFace"
sketch14.AttachmentOffset = App.Placement(V(0, 0, -0.61 * 25.4), App.Rotation())
sketch14.addGeometry([
    Part.Circle(V(78.1, -47.2, 0), V(0, 0, 1), 2.7),  # 0
    Part.Circle(V(78.1, -47.2, 0), V(0, 0, 1), 1.4),  # 1
    Part.Circle(V(115.4, -47.2, 0), V(0, 0, 1), 2.7),  # 2
    Part.Circle(V(115.4, -47.2, 0), V(0, 0, 1), 1.4),  # 3
    Part.Circle(V(115.4, -9.8, 0), V(0, 0, 1), 2.7),  # 4
    Part.Circle(V(115.4, -9.8, 0), V(0, 0, 1), 1.4),  # 5
    Part.Circle(V(78.1, -9.8, 0), V(0, 0, 1), 2.7),  # 6
    Part.Circle(V(78.1, -9.8, 0), V(0, 0, 1), 1.4),  # 7
], False)
sketch14.addConstraint([
    Sketcher.Constraint("Coincident", 1, 3, 0, 3),
    Sketcher.Constraint("Coincident", 3, 3, 2, 3),
    Sketcher.Constraint("Coincident", 5, 3, 4, 3),
    Sketcher.Constraint("Coincident", 7, 3, 6, 3),
    Sketcher.Constraint("Equal", 0, 2),
    Sketcher.Constraint("Equal", 1, 3),
    Sketcher.Constraint("Equal", 2, 4),
    Sketcher.Constraint("Equal", 3, 5),
    Sketcher.Constraint("Equal", 4, 6),
    Sketcher.Constraint("Equal", 5, 7),
    Sketcher.Constraint("Horizontal", 1, 3, 2, 3),
    Sketcher.Constraint("Horizontal", 5, 3, 6, 3),
    Sketcher.Constraint("Vertical", 3, 3, 4, 3),
    Sketcher.Constraint("Vertical", 1, 3, 6, 3),
    Sketcher.Constraint("Diameter", 0, Q("0.21 in")),
    Sketcher.Constraint("Diameter", 1, Q("0.114 in")),
    Sketcher.Constraint("DistanceX", 0, 3, 2, 3, Q("1.471 in")),
    Sketcher.Constraint("DistanceY", 2, 3, 4, 3, Q("1.471 in")),
    Sketcher.Constraint("DistanceX", -1, 1, 0, 3, 78.074628),
    Sketcher.Constraint("DistanceY", 0, 3, -1, 1, 47.169332),
])
pad6 = body.newObject("PartDesign::Pad", "Pad005")
pad6.Profile = sketch14
pad6.Length = Q("0.43 in")

# Sketch on XZ plane
sketch15 = body.newObject("Sketcher::SketchObject", "Sketch014")
sketch15.AttachmentSupport = (doc.getObject("XZ_Plane"), [""])
sketch15.MapMode = "FlatFace"
sketch15.AttachmentOffset = App.Placement(V(0, 0, -0.61 * 25.4), App.Rotation())
sketch15.addGeometry([
    Part.Circle(V(115.4, -9.8, 0), V(0, 0, 1), 2),
    Part.Circle(V(78.1, -9.8, 0), V(0, 0, 1), 2),
    Part.Circle(V(115.4, -47.2, 0), V(0, 0, 1), 2),
    Part.Circle(V(78.1, -47.2, 0), V(0, 0, 1), 2),
], False)
sketch15.addConstraint([
    Sketcher.Constraint("Equal", 0, 1),
    Sketcher.Constraint("Equal", 1, 2),
    Sketcher.Constraint("Equal", 2, 3),
    Sketcher.Constraint("Horizontal", 0, 3, 1, 3),
    Sketcher.Constraint("Horizontal", 2, 3, 3, 3),
    Sketcher.Constraint("Vertical", 0, 3, 2, 3),
    Sketcher.Constraint("Vertical", 1, 3, 3, 3),
    Sketcher.Constraint("Diameter", 0, Q("0.159 in")),
    Sketcher.Constraint("DistanceX", 1, 3, 0, 3, Q("1.471 in")),
    Sketcher.Constraint("DistanceY", 2, 3, 0, 3, Q("1.471 in")),
    Sketcher.Constraint("DistanceX", -1, 1, 0, 3, 115.438028),
    Sketcher.Constraint("DistanceY", 0, 3, -1, 1, 9.805932),
])
pocket9 = body.newObject("PartDesign::Pocket", "Pocket008")
pocket9.Profile = sketch15
pocket9.Length = Q("0.247 in")
pocket9.Reversed = True

# Sketch on XZ plane
sketch16 = body.newObject("Sketcher::SketchObject", "Sketch015")
sketch16.AttachmentSupport = (doc.getObject("XZ_Plane"), [""])
sketch16.MapMode = "FlatFace"
sketch16.AttachmentOffset = App.Placement(V(0, 0, -0.61 * 25.4), App.Rotation())
sketch16.addGeometry([
    Part.Circle(V(78.1, -9.8, 0), V(0, 0, 1), 4.6),  # 0
    Part.Circle(V(78.1, -9.8, 0), V(0, 0, 1), 2),  # 1
    Part.Circle(V(115.4, -9.8, 0), V(0, 0, 1), 4.6),  # 2
    Part.Circle(V(115.4, -9.8, 0), V(0, 0, 1), 2),  # 3
    Part.Circle(V(115.4, -47.2, 0), V(0, 0, 1), 4.6),  # 4
    Part.Circle(V(115.4, -47.2, 0), V(0, 0, 1), 2),  # 5
    Part.Circle(V(78.1, -47.2, 0), V(0, 0, 1), 4.6),  # 6
    Part.Circle(V(78.1, -47.2, 0), V(0, 0, 1), 2),  # 7
], False)
sketch16.addConstraint([
    Sketcher.Constraint("Coincident", 1, 3, 0, 3),
    Sketcher.Constraint("Coincident", 3, 3, 2, 3),
    Sketcher.Constraint("Coincident", 5, 3, 4, 3),
    Sketcher.Constraint("Coincident", 7, 3, 6, 3),
    Sketcher.Constraint("Equal", 0, 2),
    Sketcher.Constraint("Equal", 1, 3),
    Sketcher.Constraint("Equal", 2, 4),
    Sketcher.Constraint("Equal", 3, 5),
    Sketcher.Constraint("Equal", 4, 6),
    Sketcher.Constraint("Equal", 5, 7),
    Sketcher.Constraint("Horizontal", 1, 3, 2, 3),
    Sketcher.Constraint("Horizontal", 5, 3, 6, 3),
    Sketcher.Constraint("Vertical", 3, 3, 4, 3),
    Sketcher.Constraint("Vertical", 1, 3, 6, 3),
    Sketcher.Constraint("Diameter", 0, Q("0.36 in")),
    Sketcher.Constraint("Diameter", 1, Q("0.159 in")),
    Sketcher.Constraint("DistanceX", 0, 3, 2, 3, Q("1.471 in")),
    Sketcher.Constraint("DistanceY", 4, 3, 2, 3, Q("1.471 in")),
    Sketcher.Constraint("DistanceX", -1, 1, 0, 3, 78.074628),
    Sketcher.Constraint("DistanceY", 0, 3, -1, 1, 9.805932),
])
pad7 = body.newObject("PartDesign::Pad", "Pad006")
pad7.Profile = sketch16
pad7.Length = Q("0.43 in")

# Sketch on YZ plane
sketch17 = body.newObject("Sketcher::SketchObject", "Sketch016")
sketch17.AttachmentSupport = (doc.getObject("YZ_Plane"), [""])
sketch17.MapMode = "FlatFace"
sketch17.AttachmentOffset = App.Placement(V(0, 0, 5.636 * 25.4), App.Rotation())
sketch17.addGeometry(Part.Circle(V(26, -78, 0), V(0, 0, 1), 11), False)
sketch17.addConstraint([
    Sketcher.Constraint("Diameter", 0, Q("0.868 in")),
    Sketcher.Constraint("DistanceX", -1, 1, 0, 3, Q("1.0135 in")),
    Sketcher.Constraint("DistanceY", 0, 3, -1, 1, 78.413059),
])
pocket10 = body.newObject("PartDesign::Pocket", "Pocket009")
pocket10.Profile = sketch17
pocket10.Length = Q("1.817 in")

# Sketch on YZ plane
sketch18 = body.newObject("Sketcher::SketchObject", "Sketch017")
sketch18.AttachmentSupport = (doc.getObject("YZ_Plane"), [""])
sketch18.MapMode = "FlatFace"
sketch18.AttachmentOffset = App.Placement(V(0, 0, 4.162 * 25.4), App.Rotation())
sketch18.addGeometry(Part.Circle(V(26, -78, 0), V(0, 0, 1), 17), False)
sketch18.addConstraint([
    Sketcher.Constraint("Diameter", 0, Q("1.3 in")),
    Sketcher.Constraint("DistanceX", -1, 1, 0, 3, Q("1.0135 in")),
    Sketcher.Constraint("DistanceY", 0, 3, -1, 1, 78.413059),
])
pocket11 = body.newObject("PartDesign::Pocket", "Pocket010")
pocket11.Profile = sketch18
pocket11.Length = Q("2.407 in")
pocket11.Reversed = True

# Sketch on XY plane
sketch19 = body.newObject("Sketcher::SketchObject", "Sketch018")
sketch19.AttachmentSupport = (doc.getObject("XY_Plane"), [""])
sketch19.MapMode = "FlatFace"
sketch19.AttachmentOffset = App.Placement(V(0, 0, -102.098559), App.Rotation())
sketch19.addGeometry([
    Part.ArcOfCircle(Part.Circle(V(121, 25, 0), V(0, 0, 1), 9), math.radians(0), math.radians(180)),
    Part.ArcOfCircle(Part.Circle(V(121, 25, 0), V(0, 0, 1), 9), math.radians(180), math.radians(360)),
], False)
sketch19.addConstraint([
    Sketcher.Constraint("Tangent", 0, 1, 1, 2),
    Sketcher.Constraint("Coincident", 1, 1, 0, 2),
    Sketcher.Constraint("Horizontal", 1, 3, 0, 1),
    Sketcher.Constraint("Horizontal", 0, 1, 1, 1),
    Sketcher.Constraint("DistanceY", -1, 1, 0, 3, Q("0.99 in")),
    Sketcher.Constraint("Radius", 0, 9.35969),
    Sketcher.Constraint("DistanceX", -1, 1, 0, 3, 120.862721),
])
pocket12 = body.newObject("PartDesign::Pocket", "Pocket011")
pocket12.Profile = sketch19
pocket12.Length = Q("0.597 in")
pocket12.Reversed = True

# Sketch on YZ plane
sketch20 = body.newObject("Sketcher::SketchObject", "Sketch019")
sketch20.AttachmentSupport = (doc.getObject("YZ_Plane"), [""])
sketch20.MapMode = "FlatFace"
sketch20.addGeometry([
    Part.LineSegment(V(16.4, -83.7, 0), V(14, -83.7, 0)),
    Part.LineSegment(V(14, -83.7, 0), V(14, -32.9, 0)),
    Part.LineSegment(V(14, -32.9, 0), V(16.4, -32.9, 0)),
    Part.LineSegment(V(16.4, -32.9, 0), V(16.4, -83.7, 0)),
], False)
sketch20.addConstraint([
    Sketcher.Constraint("Coincident", 0, 2, 1, 1),
    Sketcher.Constraint("Coincident", 1, 2, 2, 1),
    Sketcher.Constraint("Coincident", 2, 2, 3, 1),
    Sketcher.Constraint("Coincident", 3, 2, 0, 1),
    Sketcher.Constraint("Horizontal", 0),
    Sketcher.Constraint("Vertical", 1),
    Sketcher.Constraint("Horizontal", 2),
    Sketcher.Constraint("Vertical", 3),
    Sketcher.Constraint("DistanceY", 1, 1, 1, 2, Q("2 in")),
    Sketcher.Constraint("DistanceX", -1, 1, 0, 2, Q("0.55 in")),
    Sketcher.Constraint("DistanceY", 0, 2, -1, 1, Q("3.294 in")),
    Sketcher.Constraint("DistanceX", 0, 2, 0, 1, 2.471398),
])
pocket13 = body.newObject("PartDesign::Pocket", "Pocket012")
pocket13.Profile = sketch20
pocket13.Length = Q("0.597 in")
pocket13.Reversed = True

# Sketch on YZ plane
sketch21 = body.newObject("Sketcher::SketchObject", "Sketch020")
sketch21.AttachmentSupport = (doc.getObject("YZ_Plane"), [""])
sketch21.MapMode = "FlatFace"
sketch21.addGeometry([
    Part.LineSegment(V(5, -84, 0), V(14, -84, 0)),
    Part.ArcOfCircle(Part.Circle(V(9, -79, 0), V(0, 0, 1), 7), math.radians(-135), math.radians(-45)),
], False)
sketch21.addConstraint([
    Sketcher.Constraint("Coincident", 0, 1, 1, 1),
    Sketcher.Constraint("Coincident", 1, 2, 0, 2),
    Sketcher.Constraint("Horizontal", 0),
    Sketcher.Constraint("DistanceX", 0, 1, 0, 2, Q("0.37 in")),
    Sketcher.Constraint("DistanceX", -1, 1, 0, 1, Q("0.18 in")),
    Sketcher.Constraint("DistanceY", 1, 3, -1, 1, Q("3.109 in")),
    Sketcher.Constraint("DistanceY", 0, 1, -1, 1, Q("3.294 in")),
])
pad8 = body.newObject("PartDesign::Pad", "Pad007")
pad8.Profile = sketch21
pad8.Length = Q("0.1 in")

# Sketch on YZ plane
sketch22 = body.newObject("Sketcher::SketchObject", "Sketch021")
sketch22.AttachmentSupport = (doc.getObject("YZ_Plane"), [""])
sketch22.MapMode = "FlatFace"
sketch22.addGeometry([
    Part.LineSegment(V(14, -33, 0), V(5, -33, 0)),
    Part.ArcOfCircle(Part.Circle(V(9, -38, 0), V(0, 0, 1), 7), math.radians(45), math.radians(135)),
], False)
sketch22.addConstraint([
    Sketcher.Constraint("Coincident", 0, 1, 1, 1),
    Sketcher.Constraint("Coincident", 1, 2, 0, 2),
    Sketcher.Constraint("Horizontal", 0),
    Sketcher.Constraint("DistanceX", 0, 2, 0, 1, Q("0.37 in")),
    Sketcher.Constraint("DistanceX", -1, 1, 0, 1, Q("0.55 in")),
    Sketcher.Constraint("DistanceY", 1, 3, -1, 1, Q("1.479 in")),
    Sketcher.Constraint("DistanceY", 0, 1, -1, 1, Q("1.294 in")),
])
pad9 = body.newObject("PartDesign::Pad", "Pad008")
pad9.Profile = sketch22
pad9.Length = Q("0.1 in")

doc.recompute()
